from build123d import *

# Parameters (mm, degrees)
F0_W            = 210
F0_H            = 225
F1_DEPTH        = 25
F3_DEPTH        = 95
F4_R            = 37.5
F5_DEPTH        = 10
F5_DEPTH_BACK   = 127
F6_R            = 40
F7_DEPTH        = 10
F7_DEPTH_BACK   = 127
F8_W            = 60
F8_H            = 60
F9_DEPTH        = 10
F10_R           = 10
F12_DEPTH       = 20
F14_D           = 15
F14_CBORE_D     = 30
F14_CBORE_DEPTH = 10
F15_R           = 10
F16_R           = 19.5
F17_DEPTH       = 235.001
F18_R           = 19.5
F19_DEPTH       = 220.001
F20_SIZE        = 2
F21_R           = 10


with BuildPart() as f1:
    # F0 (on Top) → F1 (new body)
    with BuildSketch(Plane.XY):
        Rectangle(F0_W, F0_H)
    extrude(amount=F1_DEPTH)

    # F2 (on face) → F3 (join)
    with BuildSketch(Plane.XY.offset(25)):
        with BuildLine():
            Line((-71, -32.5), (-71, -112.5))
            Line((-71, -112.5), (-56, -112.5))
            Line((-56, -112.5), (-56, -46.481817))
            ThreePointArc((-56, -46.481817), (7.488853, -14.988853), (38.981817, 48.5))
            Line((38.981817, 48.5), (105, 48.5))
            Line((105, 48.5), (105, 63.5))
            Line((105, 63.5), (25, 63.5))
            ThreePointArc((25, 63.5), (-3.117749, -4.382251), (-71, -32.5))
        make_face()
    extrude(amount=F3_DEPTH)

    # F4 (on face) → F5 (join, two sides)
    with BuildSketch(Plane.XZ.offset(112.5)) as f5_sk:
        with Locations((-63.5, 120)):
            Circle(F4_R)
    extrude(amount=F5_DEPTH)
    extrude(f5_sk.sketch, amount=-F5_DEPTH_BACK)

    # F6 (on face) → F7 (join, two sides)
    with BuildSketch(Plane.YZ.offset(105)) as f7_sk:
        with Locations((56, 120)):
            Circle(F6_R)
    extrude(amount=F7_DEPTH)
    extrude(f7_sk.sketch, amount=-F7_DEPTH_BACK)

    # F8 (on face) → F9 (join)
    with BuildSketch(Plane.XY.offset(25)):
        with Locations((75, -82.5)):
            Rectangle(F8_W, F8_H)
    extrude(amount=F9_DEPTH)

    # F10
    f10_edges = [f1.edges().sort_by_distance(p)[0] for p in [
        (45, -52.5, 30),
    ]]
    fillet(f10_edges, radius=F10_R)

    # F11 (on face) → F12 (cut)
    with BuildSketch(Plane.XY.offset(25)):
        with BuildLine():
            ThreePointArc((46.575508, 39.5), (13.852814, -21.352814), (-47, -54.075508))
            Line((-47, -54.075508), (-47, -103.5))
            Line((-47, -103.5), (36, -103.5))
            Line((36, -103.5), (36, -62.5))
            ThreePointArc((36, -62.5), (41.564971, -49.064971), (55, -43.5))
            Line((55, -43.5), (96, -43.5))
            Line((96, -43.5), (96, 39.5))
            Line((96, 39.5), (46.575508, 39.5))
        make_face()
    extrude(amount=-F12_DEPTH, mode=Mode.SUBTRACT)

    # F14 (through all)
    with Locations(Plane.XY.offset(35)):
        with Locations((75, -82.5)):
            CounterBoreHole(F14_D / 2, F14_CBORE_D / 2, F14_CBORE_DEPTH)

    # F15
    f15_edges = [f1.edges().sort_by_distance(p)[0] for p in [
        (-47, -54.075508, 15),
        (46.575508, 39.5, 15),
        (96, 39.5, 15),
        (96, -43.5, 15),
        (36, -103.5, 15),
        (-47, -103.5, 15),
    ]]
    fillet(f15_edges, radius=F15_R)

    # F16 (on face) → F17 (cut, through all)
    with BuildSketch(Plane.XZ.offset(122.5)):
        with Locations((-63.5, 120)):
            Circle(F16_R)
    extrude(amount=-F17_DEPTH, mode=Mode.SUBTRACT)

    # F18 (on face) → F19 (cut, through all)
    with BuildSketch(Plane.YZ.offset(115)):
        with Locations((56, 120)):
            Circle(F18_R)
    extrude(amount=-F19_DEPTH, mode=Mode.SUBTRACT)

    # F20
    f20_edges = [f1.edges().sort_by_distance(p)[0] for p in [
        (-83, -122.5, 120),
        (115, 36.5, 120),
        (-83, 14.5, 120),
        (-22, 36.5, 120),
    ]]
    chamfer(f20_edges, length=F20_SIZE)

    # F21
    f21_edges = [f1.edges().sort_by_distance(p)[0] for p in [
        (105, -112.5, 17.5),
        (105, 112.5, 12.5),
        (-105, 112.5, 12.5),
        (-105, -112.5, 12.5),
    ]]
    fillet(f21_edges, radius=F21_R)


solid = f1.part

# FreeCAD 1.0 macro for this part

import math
import FreeCAD as App
import Part
import Sketcher
from FreeCAD import Vector


def edges_at(feature, points):
    """Names of the edges that pass closest to the given points."""
    edges = feature.Shape.Edges
    near = lambda p: min(range(len(edges)), key=lambda i: edges[i].distToShape(Part.Vertex(*p))[0])
    return sorted({f"Edge{near(p) + 1}" for p in points})

doc = App.newDocument("Part")
body = doc.addObject("PartDesign::Body", "Body")

# Sketch on XY plane
sketch1 = body.newObject("Sketcher::SketchObject", "Sketch")
sketch1.AttachmentSupport = (doc.getObject("XY_Plane"), [""])
sketch1.MapMode = "FlatFace"
sketch1.addGeometry([
    Part.LineSegment(Vector(-105, 112.5, 0), Vector(-105, -112.5, 0)),
    Part.LineSegment(Vector(-105, -112.5, 0), Vector(105, -112.5, 0)),
    Part.LineSegment(Vector(105, -112.5, 0), Vector(105, 112.5, 0)),
    Part.LineSegment(Vector(105, 112.5, 0), Vector(-105, 112.5, 0)),
], False)
sketch1.addConstraint([
    Sketcher.Constraint("Coincident", 0, 2, 1, 1),
    Sketcher.Constraint("Coincident", 1, 2, 2, 1),
    Sketcher.Constraint("Coincident", 2, 2, 3, 1),
    Sketcher.Constraint("Coincident", 3, 2, 0, 1),
    Sketcher.Constraint("Vertical", 0),
    Sketcher.Constraint("Horizontal", 1),
    Sketcher.Constraint("Vertical", 2),
    Sketcher.Constraint("Horizontal", 3),
    Sketcher.Constraint("Symmetric", 0, 2, 2, 2, -1, 1),
    Sketcher.Constraint("DistanceX", 1, 1, 1, 2, 210.0),
    Sketcher.Constraint("DistanceY", 0, 2, 0, 1, 225.0),
])
pad1 = body.newObject("PartDesign::Pad", "Pad")
pad1.Profile = sketch1
pad1.Length = 25

# Sketch on XY plane
sketch2 = body.newObject("Sketcher::SketchObject", "Sketch001")
sketch2.AttachmentSupport = (doc.getObject("XY_Plane"), [""])
sketch2.MapMode = "FlatFace"
sketch2.AttachmentOffset = App.Placement(Vector(0, 0, 25), App.Rotation())
sketch2.addGeometry([
    Part.LineSegment(Vector(-71, -32.5, 0), Vector(-71, -112.5, 0)),  # 0
    Part.LineSegment(Vector(-71, -112.5, 0), Vector(-56, -112.5, 0)),  # 1
    Part.LineSegment(Vector(-56, -112.5, 0), Vector(-56, -46.481817, 0)),  # 2
    Part.ArcOfCircle(Part.Circle(Vector(-71, 63.5, 0), Vector(0, 0, 1), 111), math.radians(-82.233566), math.radians(-7.766434)),  # 3
    Part.LineSegment(Vector(38.981817, 48.5, 0), Vector(105, 48.5, 0)),  # 4
    Part.LineSegment(Vector(105, 48.5, 0), Vector(105, 63.5, 0)),  # 5
    Part.LineSegment(Vector(105, 63.5, 0), Vector(25, 63.5, 0)),  # 6
    Part.ArcOfCircle(Part.Circle(Vector(-71, 63.5, 0), Vector(0, 0, 1), 96), math.radians(-90), math.radians(0)),  # 7
], False)
sketch2.addConstraint([
    Sketcher.Constraint("Coincident", 0, 2, 1, 1),
    Sketcher.Constraint("Coincident", 1, 2, 2, 1),
    Sketcher.Constraint("Coincident", 2, 2, 3, 1),
    Sketcher.Constraint("Coincident", 3, 2, 4, 1),
    Sketcher.Constraint("Coincident", 4, 2, 5, 1),
    Sketcher.Constraint("Coincident", 5, 2, 6, 1),
    Sketcher.Constraint("Coincident", 6, 2, 7, 2),
    Sketcher.Constraint("Coincident", 7, 1, 0, 1),
    Sketcher.Constraint("Vertical", 0),
    Sketcher.Constraint("Horizontal", 1),
    Sketcher.Constraint("Vertical", 2),
    Sketcher.Constraint("Horizontal", 4),
    Sketcher.Constraint("Vertical", 5),
    Sketcher.Constraint("Horizontal", 6),
    Sketcher.Constraint("Coincident", 7, 3, 3, 3),
    Sketcher.Constraint("Horizontal", 7, 3, 5, 2),
    Sketcher.Constraint("Vertical", 7, 3, 0, 2),
    Sketcher.Constraint("Equal", 6, 0),
    Sketcher.Constraint("Equal", 4, 2),
    Sketcher.Constraint("Radius", 3, 111.0),
    Sketcher.Constraint("Radius", 7, 96.0),
    Sketcher.Constraint("DistanceX", 1, 1, 1, 2, 15.0),
    Sketcher.Constraint("DistanceX", 6, 2, 6, 1, 80.0),
    Sketcher.Constraint("DistanceX", 3, 3, -1, 1, 71.0),
    Sketcher.Constraint("DistanceY", -1, 1, 3, 3, 63.5),
])
pad2 = body.newObject("PartDesign::Pad", "Pad001")
pad2.Profile = sketch2
pad2.Length = 95

# Sketch on XZ plane
sketch3 = body.newObject("Sketcher::SketchObject", "Sketch002")
sketch3.AttachmentSupport = (doc.getObject("XZ_Plane"), [""])
sketch3.MapMode = "FlatFace"
sketch3.AttachmentOffset = App.Placement(Vector(0, 0, 112.5), App.Rotation())
sketch3.addGeometry(Part.Circle(Vector(-63.5, 120, 0), Vector(0, 0, 1), 37.5), False)
sketch3.addConstraint([
    Sketcher.Constraint("Diameter", 0, 75.0),
    Sketcher.Constraint("DistanceY", -1, 1, 0, 3, 120.0),
    Sketcher.Constraint("DistanceX", 0, 3, -1, 1, 63.5),
])
pad3 = body.newObject("PartDesign::Pad", "Pad002")
pad3.Profile = sketch3
pad3.Type = "TwoLengths"
pad3.Length = 10
pad3.Length2 = 127

# Sketch on YZ plane
sketch4 = body.newObject("Sketcher::SketchObject", "Sketch003")
sketch4.AttachmentSupport = (doc.getObject("YZ_Plane"), [""])
sketch4.MapMode = "FlatFace"
sketch4.AttachmentOffset = App.Placement(Vector(0, 0, 105), App.Rotation())
sketch4.addGeometry(Part.Circle(Vector(56, 120, 0), Vector(0, 0, 1), 40), False)
sketch4.addConstraint([
    Sketcher.Constraint("Diameter", 0, 80.0),
    Sketcher.Constraint("DistanceX", -1, 1, 0, 3, 56.0),
    Sketcher.Constraint("DistanceY", -1, 1, 0, 3, 120.0),
])
pad4 = body.newObject("PartDesign::Pad", "Pad003")
pad4.Profile = sketch4
pad4.Type = "TwoLengths"
pad4.Length = 10
pad4.Length2 = 127

# Sketch on XY plane
sketch5 = body.newObject("Sketcher::SketchObject", "Sketch004")
sketch5.AttachmentSupport = (doc.getObject("XY_Plane"), [""])
sketch5.MapMode = "FlatFace"
sketch5.AttachmentOffset = App.Placement(Vector(0, 0, 25), App.Rotation())
sketch5.addGeometry([
    Part.LineSegment(Vector(45, -52.5, 0), Vector(45, -112.5, 0)),
    Part.LineSegment(Vector(45, -112.5, 0), Vector(105, -112.5, 0)),
    Part.LineSegment(Vector(105, -112.5, 0), Vector(105, -52.5, 0)),
    Part.LineSegment(Vector(105, -52.5, 0), Vector(45, -52.5, 0)),
], False)
sketch5.addConstraint([
    Sketcher.Constraint("Coincident", 0, 2, 1, 1),
    Sketcher.Constraint("Coincident", 1, 2, 2, 1),
    Sketcher.Constraint("Coincident", 2, 2, 3, 1),
    Sketcher.Constraint("Coincident", 3, 2, 0, 1),
    Sketcher.Constraint("Vertical", 0),
    Sketcher.Constraint("Horizontal", 1),
    Sketcher.Constraint("Vertical", 2),
    Sketcher.Constraint("Horizontal", 3),
    Sketcher.Constraint("Equal", 3, 0),
    Sketcher.Constraint("DistanceX", 1, 1, 1, 2, 60.0),
    Sketcher.Constraint("DistanceX", -1, 1, 0, 2, 45.0),
    Sketcher.Constraint("DistanceY", 0, 2, -1, 1, 112.5),
])
pad5 = body.newObject("PartDesign::Pad", "Pad004")
pad5.Profile = sketch5
pad5.Length = 10
doc.recompute()

fillet = body.newObject("PartDesign::Fillet", "Fillet")
fillet.Base = (pad5, edges_at(pad5, [(45, -52.5, 30)]))
fillet.Radius = 10

# Sketch on XY plane
sketch6 = body.newObject("Sketcher::SketchObject", "Sketch005")
sketch6.AttachmentSupport = (doc.getObject("XY_Plane"), [""])
sketch6.MapMode = "FlatFace"
sketch6.AttachmentOffset = App.Placement(Vector(0, 0, 25), App.Rotation())
sketch6.addGeometry([
    Part.ArcOfCircle(Part.Circle(Vector(-71, 63.5, 0), Vector(0, 0, 1), 120), math.radians(-78.463041), math.radians(-11.536959)),  # 0
    Part.LineSegment(Vector(-47, -54.075508, 0), Vector(-47, -103.5, 0)),  # 1
    Part.LineSegment(Vector(-47, -103.5, 0), Vector(36, -103.5, 0)),  # 2
    Part.LineSegment(Vector(36, -103.5, 0), Vector(36, -62.5, 0)),  # 3
    Part.ArcOfCircle(Part.Circle(Vector(54.999999, -62.499999, 0), Vector(0, 0, 1), 18.999999), math.radians(89.999998), math.radians(180.000002)),  # 4
    Part.LineSegment(Vector(55, -43.5, 0), Vector(96, -43.5, 0)),  # 5
    Part.LineSegment(Vector(96, -43.5, 0), Vector(96, 39.5, 0)),  # 6
    Part.LineSegment(Vector(96, 39.5, 0), Vector(46.575508, 39.5, 0)),  # 7
], False)
sketch6.addConstraint([
    Sketcher.Constraint("Coincident", 0, 1, 1, 1),
    Sketcher.Constraint("Coincident", 1, 2, 2, 1),
    Sketcher.Constraint("Coincident", 2, 2, 3, 1),
    Sketcher.Constraint("Tangent", 3, 2, 4, 2),
    Sketcher.Constraint("Tangent", 4, 1, 5, 1),
    Sketcher.Constraint("Coincident", 5, 2, 6, 1),
    Sketcher.Constraint("Coincident", 6, 2, 7, 1),
    Sketcher.Constraint("Coincident", 7, 2, 0, 2),
    Sketcher.Constraint("Vertical", 1),
    Sketcher.Constraint("Horizontal", 2),
    Sketcher.Constraint("Vertical", 3),
    Sketcher.Constraint("Horizontal", 5),
    Sketcher.Constraint("Vertical", 6),
    Sketcher.Constraint("Horizontal", 7),
    Sketcher.Constraint("Equal", 7, 1),
    Sketcher.Constraint("Equal", 5, 3),
    Sketcher.Constraint("Equal", 2, 6),
    Sketcher.Constraint("Radius", 0, 120.0),
    Sketcher.Constraint("Radius", 4, 18.999999),
    Sketcher.Constraint("DistanceX", 2, 1, 2, 2, 83.0),
    Sketcher.Constraint("DistanceX", 5, 1, 5, 2, 41.0),
    Sketcher.Constraint("DistanceX", 0, 3, -1, 1, 71.0),
    Sketcher.Constraint("DistanceX", -1, 1, 4, 3, 54.999999),
    Sketcher.Constraint("DistanceY", -1, 1, 0, 3, 63.5),
])
pocket1 = body.newObject("PartDesign::Pocket", "Pocket")
pocket1.Profile = sketch6
pocket1.Length = 20

# Sketch on XY plane
sketch7 = body.newObject("Sketcher::SketchObject", "Sketch006")
sketch7.AttachmentSupport = (doc.getObject("XY_Plane"), [""])
sketch7.MapMode = "FlatFace"
sketch7.AttachmentOffset = App.Placement(Vector(0, 0, 35), App.Rotation())
sketch7.addGeometry(Part.Circle(Vector(75, -82.5, 0), Vector(0, 0, 1), 7.5), False)
sketch7.addConstraint([
    Sketcher.Constraint("Diameter", 0, 15.0),
    Sketcher.Constraint("DistanceX", -1, 1, 0, 3, 75.0),
    Sketcher.Constraint("DistanceY", 0, 3, -1, 1, 82.5),
])
doc.recompute()
hole = body.newObject("PartDesign::Hole", "Hole")
hole.Profile = sketch7
hole.ThreadType = "None"
hole.Diameter = 15
hole.DepthType = "ThroughAll"
hole.HoleCutType = "Counterbore"
hole.HoleCutDiameter = 30
hole.HoleCutDepth = 10
doc.recompute()

fillet2 = body.newObject("PartDesign::Fillet", "Fillet001")
fillet2.Base = (hole, edges_at(hole, [
    (-47, -54.076, 15),
    (46.576, 39.5, 15),
    (96, 39.5, 15),
    (96, -43.5, 15),
    (36, -103.5, 15),
    (-47, -103.5, 15),
]))
fillet2.Radius = 10

# Sketch on XZ plane
sketch8 = body.newObject("Sketcher::SketchObject", "Sketch007")
sketch8.AttachmentSupport = (doc.getObject("XZ_Plane"), [""])
sketch8.MapMode = "FlatFace"
sketch8.AttachmentOffset = App.Placement(Vector(0, 0, 122.5), App.Rotation())
sketch8.addGeometry(Part.Circle(Vector(-63.5, 120, 0), Vector(0, 0, 1), 19.5), False)
sketch8.addConstraint([
    Sketcher.Constraint("Diameter", 0, 39.0),
    Sketcher.Constraint("DistanceY", -1, 1, 0, 3, 120.0),
    Sketcher.Constraint("DistanceX", 0, 3, -1, 1, 63.5),
])
pocket2 = body.newObject("PartDesign::Pocket", "Pocket001")
pocket2.Profile = sketch8
pocket2.Type = "ThroughAll"

# Sketch on YZ plane
sketch9 = body.newObject("Sketcher::SketchObject", "Sketch008")
sketch9.AttachmentSupport = (doc.getObject("YZ_Plane"), [""])
sketch9.MapMode = "FlatFace"
sketch9.AttachmentOffset = App.Placement(Vector(0, 0, 115), App.Rotation())
sketch9.addGeometry(Part.Circle(Vector(56, 120, 0), Vector(0, 0, 1), 19.5), False)
sketch9.addConstraint([
    Sketcher.Constraint("Diameter", 0, 39.0),
    Sketcher.Constraint("DistanceX", -1, 1, 0, 3, 56.0),
    Sketcher.Constraint("DistanceY", -1, 1, 0, 3, 120.0),
])
pocket3 = body.newObject("PartDesign::Pocket", "Pocket002")
pocket3.Profile = sketch9
pocket3.Type = "ThroughAll"
doc.recompute()

chamfer = body.newObject("PartDesign::Chamfer", "Chamfer")
chamfer.Base = (pocket3, edges_at(pocket3, [
    (-83, -122.5, 120),
    (115, 36.5, 120),
    (-83, 14.5, 120),
    (-22, 36.5, 120),
]))
chamfer.Size = 2
doc.recompute()

fillet3 = body.newObject("PartDesign::Fillet", "Fillet002")
fillet3.Base = (chamfer, edges_at(chamfer, [
    (105, -112.5, 17.5),
    (105, 112.5, 12.5),
    (-105, 112.5, 12.5),
    (-105, -112.5, 12.5),
]))
fillet3.Radius = 10

doc.recompute()
